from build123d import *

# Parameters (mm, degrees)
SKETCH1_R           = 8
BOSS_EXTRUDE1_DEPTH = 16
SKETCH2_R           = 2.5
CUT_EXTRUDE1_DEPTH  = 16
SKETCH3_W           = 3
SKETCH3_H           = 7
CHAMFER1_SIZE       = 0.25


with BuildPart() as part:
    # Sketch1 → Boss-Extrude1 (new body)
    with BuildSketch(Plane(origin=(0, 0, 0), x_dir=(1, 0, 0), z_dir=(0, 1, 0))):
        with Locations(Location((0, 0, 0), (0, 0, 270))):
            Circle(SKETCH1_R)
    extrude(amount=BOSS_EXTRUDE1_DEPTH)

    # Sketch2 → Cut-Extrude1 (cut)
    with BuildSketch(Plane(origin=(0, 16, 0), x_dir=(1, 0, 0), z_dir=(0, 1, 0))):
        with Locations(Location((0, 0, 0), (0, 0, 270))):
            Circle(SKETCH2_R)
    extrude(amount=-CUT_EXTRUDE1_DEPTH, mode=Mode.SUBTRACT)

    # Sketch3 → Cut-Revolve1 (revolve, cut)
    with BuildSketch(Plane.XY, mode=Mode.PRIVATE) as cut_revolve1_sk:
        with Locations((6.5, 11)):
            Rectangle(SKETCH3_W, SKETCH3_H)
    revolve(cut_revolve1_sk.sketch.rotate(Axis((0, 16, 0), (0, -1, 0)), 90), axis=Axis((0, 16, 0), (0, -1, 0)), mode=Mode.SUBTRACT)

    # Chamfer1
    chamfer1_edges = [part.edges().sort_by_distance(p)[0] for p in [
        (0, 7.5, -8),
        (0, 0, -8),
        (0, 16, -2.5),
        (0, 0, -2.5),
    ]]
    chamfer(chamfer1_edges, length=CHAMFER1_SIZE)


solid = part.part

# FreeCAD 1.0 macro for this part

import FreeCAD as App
import Part
import Sketcher
Q = App.Units.Quantity


def edges_at(feature, points):
    """Names of the edges that pass closest to the given points."""
    edges = feature.Shape.Edges
    near = lambda p: min(range(len(edges)), key=lambda i: edges[i].distToShape(Part.Vertex(*p))[0])
    return sorted({f"Edge{near(p) + 1}" for p in points})


def add_polygon(sketch, points):
    """Adds a closed chain of lines whose ends are joined by coincident constraints."""
    first, n = sketch.GeometryCount, len(points)
    for a, b in zip(points, points[1:] + points[:1]):
        sketch.addGeometry(Part.LineSegment(App.Vector(*a, 0), App.Vector(*b, 0)), False)
    for i in range(n):
        sketch.addConstraint(Sketcher.Constraint("Coincident", first + i, 2, first + (i + 1) % n, 1))

doc = App.newDocument("Part")
params = doc.addObject("Spreadsheet::Sheet", "Params")
for row, (alias, value) in enumerate([
    ("sketch1_diameter", "16 mm"),
    ("pad1_length", "16 mm"),
    ("sketch2_diameter", "5 mm"),
    ("pocket1_length", "16 mm"),
    ("sketch3_width", "3 mm"),
    ("sketch3_height", "7 mm"),
    ("groove_angle", "360 deg"),
    ("chamfer_size", "0.25 mm"),
], start=1):
    params.set(f"A{row}", alias)
    params.set(f"B{row}", "=" + value)
    params.setAlias(f"B{row}", alias)

body = doc.addObject("PartDesign::Body", "Body")

# Sketch on XZ plane
sketch1 = doc.addObject("Sketcher::SketchObject", "Sketch")
body.addObject(sketch1)
sketch1.AttachmentSupport = (doc.XZ_Plane, [""])
sketch1.MapMode = "FlatFace"
sketch1.addGeometry(Part.Circle(App.Vector(0, 0, 0), App.Vector(0, 0, 1), 8), False)
sketch1.addConstraint(Sketcher.Constraint("Coincident", 0, 3, -1, 1))
sketch1.addConstraint(Sketcher.Constraint("Diameter", 0, Q("16 mm")))
sketch1.setExpression("Constraints[1]", "Params.sketch1_diameter")
pad1 = doc.addObject("PartDesign::Pad", "Pad")
body.addObject(pad1)
pad1.Profile = sketch1
pad1.setExpression("Length", "Params.pad1_length")
pad1.Reversed = True

# Sketch on XZ plane
sketch2 = doc.addObject("Sketcher::SketchObject", "Sketch001")
body.addObject(sketch2)
sketch2.AttachmentSupport = (doc.XZ_Plane, [""])
sketch2.MapMode = "FlatFace"
sketch2.AttachmentOffset = App.Placement(App.Vector(0, 0, -16), App.Rotation())
sketch2.addGeometry(Part.Circle(App.Vector(0, 0, 0), App.Vector(0, 0, 1), 2.5), False)
sketch2.addConstraint(Sketcher.Constraint("Coincident", 0, 3, -1, 1))
sketch2.addConstraint(Sketcher.Constraint("Diameter", 0, Q("5 mm")))
sketch2.setExpression("Constraints[1]", "Params.sketch2_diameter")
pocket1 = doc.addObject("PartDesign::Pocket", "Pocket")
body.addObject(pocket1)
pocket1.Profile = sketch2
pocket1.setExpression("Length", "Params.pocket1_length")
pocket1.Reversed = True

# Sketch on XY plane
sketch3 = doc.addObject("Sketcher::SketchObject", "Sketch002")
body.addObject(sketch3)
sketch3.AttachmentSupport = (doc.XY_Plane, [""])
sketch3.MapMode = "FlatFace"
add_polygon(sketch3, [(5, 14.5), (5, 7.5), (8, 7.5), (8, 14.5)])  # lines 0-3
sketch3.addConstraint(Sketcher.Constraint("Vertical", 0))
sketch3.addConstraint(Sketcher.Constraint("Horizontal", 1))
sketch3.addConstraint(Sketcher.Constraint("Vertical", 2))
sketch3.addConstraint(Sketcher.Constraint("Horizontal", 3))
sketch3.addConstraint(Sketcher.Constraint("DistanceX", 1, 1, 1, 2, Q("3 mm")))
sketch3.addConstraint(Sketcher.Constraint("DistanceY", 0, 2, 0, 1, Q("7 mm")))
sketch3.addConstraint(Sketcher.Constraint("DistanceX", -1, 1, 0, 2, Q("5 mm")))
sketch3.addConstraint(Sketcher.Constraint("DistanceY", -1, 1, 0, 2, Q("7.5 mm")))
sketch3.setExpression("Constraints[8]", "Params.sketch3_width")
sketch3.setExpression("Constraints[9]", "Params.sketch3_height")
groove = doc.addObject("PartDesign::Groove", "Groove")
body.addObject(groove)
groove.Profile = sketch3
groove.ReferenceAxis = (sketch3, ["V_Axis"])
groove.setExpression("Angle", "Params.groove_angle")
doc.recompute()

chamfer = doc.addObject("PartDesign::Chamfer", "Chamfer")
body.addObject(chamfer)
chamfer.Base = (groove, edges_at(groove, [
    (0, 7.5, -8),
    (0, 0, -8),
    (0, 16, -2.5),
    (0, 0, -2.5),
]))
chamfer.setExpression("Size", "Params.chamfer_size")

doc.recompute()
